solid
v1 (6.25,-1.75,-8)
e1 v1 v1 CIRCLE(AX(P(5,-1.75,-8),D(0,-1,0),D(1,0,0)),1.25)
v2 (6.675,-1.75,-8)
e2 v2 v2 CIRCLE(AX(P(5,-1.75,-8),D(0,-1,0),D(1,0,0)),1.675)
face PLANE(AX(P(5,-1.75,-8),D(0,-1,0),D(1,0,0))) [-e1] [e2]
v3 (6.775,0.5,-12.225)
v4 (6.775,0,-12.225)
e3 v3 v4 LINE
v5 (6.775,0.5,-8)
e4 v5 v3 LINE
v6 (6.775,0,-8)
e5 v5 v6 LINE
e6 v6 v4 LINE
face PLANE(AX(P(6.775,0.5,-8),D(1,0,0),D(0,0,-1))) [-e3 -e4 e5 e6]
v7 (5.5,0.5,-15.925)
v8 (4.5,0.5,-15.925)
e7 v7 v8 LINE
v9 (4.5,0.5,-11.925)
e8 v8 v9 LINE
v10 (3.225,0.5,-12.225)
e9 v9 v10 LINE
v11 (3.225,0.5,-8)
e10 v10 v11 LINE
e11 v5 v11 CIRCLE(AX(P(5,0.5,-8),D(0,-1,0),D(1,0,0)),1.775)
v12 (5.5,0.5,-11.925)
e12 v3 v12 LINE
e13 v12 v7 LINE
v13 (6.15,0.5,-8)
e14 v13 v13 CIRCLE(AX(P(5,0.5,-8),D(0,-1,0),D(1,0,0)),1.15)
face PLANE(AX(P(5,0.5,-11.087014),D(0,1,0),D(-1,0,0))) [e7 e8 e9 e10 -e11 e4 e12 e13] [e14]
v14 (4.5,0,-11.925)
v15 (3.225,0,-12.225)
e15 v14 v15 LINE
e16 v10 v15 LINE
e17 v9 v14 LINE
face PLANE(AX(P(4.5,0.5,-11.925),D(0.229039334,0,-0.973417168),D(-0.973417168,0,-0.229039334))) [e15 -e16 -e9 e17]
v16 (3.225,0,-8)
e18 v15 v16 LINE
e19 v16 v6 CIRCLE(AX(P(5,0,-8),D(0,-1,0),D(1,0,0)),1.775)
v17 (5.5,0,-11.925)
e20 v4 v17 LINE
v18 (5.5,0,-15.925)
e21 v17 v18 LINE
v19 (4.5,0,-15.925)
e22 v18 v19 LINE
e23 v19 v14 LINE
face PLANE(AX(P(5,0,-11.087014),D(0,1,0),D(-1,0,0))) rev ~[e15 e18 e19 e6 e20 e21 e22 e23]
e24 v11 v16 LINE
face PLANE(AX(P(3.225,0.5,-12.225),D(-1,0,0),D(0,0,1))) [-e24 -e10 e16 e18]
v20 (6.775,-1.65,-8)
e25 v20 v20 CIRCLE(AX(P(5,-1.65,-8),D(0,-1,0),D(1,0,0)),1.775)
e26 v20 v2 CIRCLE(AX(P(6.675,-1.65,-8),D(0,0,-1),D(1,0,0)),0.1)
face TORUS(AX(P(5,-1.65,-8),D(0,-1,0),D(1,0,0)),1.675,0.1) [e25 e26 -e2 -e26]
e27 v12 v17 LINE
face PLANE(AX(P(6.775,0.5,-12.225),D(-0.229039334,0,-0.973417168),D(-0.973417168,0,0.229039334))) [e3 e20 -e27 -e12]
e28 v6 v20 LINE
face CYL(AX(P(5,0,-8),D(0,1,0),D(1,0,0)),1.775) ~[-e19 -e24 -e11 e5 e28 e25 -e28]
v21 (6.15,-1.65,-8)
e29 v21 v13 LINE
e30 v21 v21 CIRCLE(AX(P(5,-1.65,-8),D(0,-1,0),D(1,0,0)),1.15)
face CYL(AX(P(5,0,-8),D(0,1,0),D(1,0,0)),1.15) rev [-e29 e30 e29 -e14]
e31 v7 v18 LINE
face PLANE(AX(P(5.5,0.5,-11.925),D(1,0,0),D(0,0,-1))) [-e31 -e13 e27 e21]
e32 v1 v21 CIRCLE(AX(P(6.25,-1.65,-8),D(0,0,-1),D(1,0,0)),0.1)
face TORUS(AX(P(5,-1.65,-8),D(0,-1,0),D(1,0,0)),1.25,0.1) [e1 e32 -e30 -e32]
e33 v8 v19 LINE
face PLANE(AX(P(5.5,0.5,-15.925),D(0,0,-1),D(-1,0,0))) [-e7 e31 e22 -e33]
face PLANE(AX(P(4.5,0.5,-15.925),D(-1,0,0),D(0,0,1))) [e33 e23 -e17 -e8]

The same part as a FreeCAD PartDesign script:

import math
import FreeCAD as App
import Part
import Sketcher

V = App.Vector


def edges_at(feature, points):
    """Names of the edges that pass closest to the given points."""
    edges = feature.Shape.Edges
    near = lambda p: min(range(len(edges)), key=lambda i: edges[i].distToShape(Part.Vertex(*p))[0])
    return sorted({f"Edge{near(p) + 1}" for p in points})

doc = App.newDocument("Part")
body = doc.addObject("PartDesign::Body", "Body")

# Sketch on XZ plane
sketch1 = body.newObject("Sketcher::SketchObject", "Sketch")
sketch1.AttachmentSupport = (doc.getObject("XZ_Plane"), [""])
sketch1.MapMode = "FlatFace"
sketch1.addGeometry(Part.LineSegment(V(1.8, -4.2, 0), V(1.8, 0, 0)), False)
sketch1.addGeometry(Part.ArcOfCircle(Part.Circle(V(0, 0, 0), V(0, 0, 1), 1.8), math.radians(0), math.radians(180)), False)
sketch1.addGeometry(Part.LineSegment(V(-1.8, 0, 0), V(-1.8, -4.2, 0)), False)
sketch1.addGeometry(Part.LineSegment(V(-1.8, -4.2, 0), V(-0.5, -3.9, 0)), False)
sketch1.addGeometry(Part.LineSegment(V(-0.5, -3.9, 0), V(-0.5, -7.9, 0)), False)
sketch1.addGeometry(Part.LineSegment(V(-0.5, -7.9, 0), V(0.5, -7.9, 0)), False)
sketch1.addGeometry(Part.LineSegment(V(0.5, -7.9, 0), V(0.5, -3.9, 0)), False)
sketch1.addGeometry(Part.LineSegment(V(0.5, -3.9, 0), V(1.8, -4.2, 0)), False)
sketch1.addGeometry(Part.Circle(V(0, 0, 0), V(0, 0, 1), 1.1), False)
sketch1.addConstraint(Sketcher.Constraint("Tangent", 0, 2, 1, 1))
sketch1.addConstraint(Sketcher.Constraint("Tangent", 1, 2, 2, 1))
sketch1.addConstraint(Sketcher.Constraint("Coincident", 2, 2, 3, 1))
sketch1.addConstraint(Sketcher.Constraint("Coincident", 3, 2, 4, 1))
sketch1.addConstraint(Sketcher.Constraint("Coincident", 4, 2, 5, 1))
sketch1.addConstraint(Sketcher.Constraint("Coincident", 5, 2, 6, 1))
sketch1.addConstraint(Sketcher.Constraint("Coincident", 6, 2, 7, 1))
sketch1.addConstraint(Sketcher.Constraint("Coincident", 7, 2, 0, 1))
sketch1.addConstraint(Sketcher.Constraint("Vertical", 0))
sketch1.addConstraint(Sketcher.Constraint("Vertical", 2))
sketch1.addConstraint(Sketcher.Constraint("Vertical", 4))
sketch1.addConstraint(Sketcher.Constraint("Horizontal", 5))
sketch1.addConstraint(Sketcher.Constraint("Vertical", 6))
sketch1.addConstraint(Sketcher.Constraint("Coincident", 1, 3, -1, 1))
sketch1.addConstraint(Sketcher.Constraint("Coincident", 8, 3, -1, 1))
sketch1.addConstraint(Sketcher.Constraint("Symmetric", 3, 2, 6, 2, -2))
sketch1.addConstraint(Sketcher.Constraint("Horizontal", 2, 2, 7, 2))
sketch1.addConstraint(Sketcher.Constraint("Diameter", 8, 2.3))
sketch1.addConstraint(Sketcher.Constraint("DistanceX", 5, 1, 5, 2, 1.0))
sketch1.addConstraint(Sketcher.Constraint("DistanceY", 4, 2, 4, 1, 4.0))
sketch1.addConstraint(Sketcher.Constraint("Radius", 1, 1.775))
sketch1.addConstraint(Sketcher.Constraint("DistanceY", 2, 2, 3, 2, 0.3))
sketch1.addConstraint(Sketcher.Constraint("DistanceY", 0, 1, 0, 2, 4.225))
pad1 = body.newObject("PartDesign::Pad", "Pad")
pad1.Profile = sketch1
pad1.Length = 0.5

# Sketch on XZ plane
sketch2 = body.newObject("Sketcher::SketchObject", "Sketch001")
sketch2.AttachmentSupport = (doc.getObject("XZ_Plane"), [""])
sketch2.MapMode = "FlatFace"
sketch2.AttachmentOffset = App.Placement(V(0, 0, 0.5), App.Rotation())
sketch2.addGeometry(Part.Circle(V(0, 0, 0), V(0, 0, 1), 1.8), False)
sketch2.addGeometry(Part.Circle(V(0, 0, 0), V(0, 0, 1), 1.1), False)
sketch2.addConstraint(Sketcher.Constraint("Coincident", 0, 3, -1, 1))
sketch2.addConstraint(Sketcher.Constraint("Coincident", 1, 3, -1, 1))
sketch2.addConstraint(Sketcher.Constraint("Diameter", 1, 2.3))
sketch2.addConstraint(Sketcher.Constraint("Diameter", 0, 3.55))
pad2 = body.newObject("PartDesign::Pad", "Pad001")
pad2.Profile = sketch2
pad2.Length = 1.75
doc.recompute()

fillet = body.newObject("PartDesign::Fillet", "Fillet")
fillet.Base = (pad2, edges_at(pad2, [(-1.775, -2.25, 0), (-1.15, -2.25, 0)]))
fillet.Radius = 0.1
body2 = doc.addObject("PartDesign::Body", "Body001")
doc.recompute()

body.Placement = App.Placement(V(5, 0.5, -8), App.Rotation(V(0, 0, 1), 0))
boolean = body2.newObject("PartDesign::Boolean", "Boolean")
boolean.Type = "Fuse"
boolean.addObjects([body])

doc.recompute()
